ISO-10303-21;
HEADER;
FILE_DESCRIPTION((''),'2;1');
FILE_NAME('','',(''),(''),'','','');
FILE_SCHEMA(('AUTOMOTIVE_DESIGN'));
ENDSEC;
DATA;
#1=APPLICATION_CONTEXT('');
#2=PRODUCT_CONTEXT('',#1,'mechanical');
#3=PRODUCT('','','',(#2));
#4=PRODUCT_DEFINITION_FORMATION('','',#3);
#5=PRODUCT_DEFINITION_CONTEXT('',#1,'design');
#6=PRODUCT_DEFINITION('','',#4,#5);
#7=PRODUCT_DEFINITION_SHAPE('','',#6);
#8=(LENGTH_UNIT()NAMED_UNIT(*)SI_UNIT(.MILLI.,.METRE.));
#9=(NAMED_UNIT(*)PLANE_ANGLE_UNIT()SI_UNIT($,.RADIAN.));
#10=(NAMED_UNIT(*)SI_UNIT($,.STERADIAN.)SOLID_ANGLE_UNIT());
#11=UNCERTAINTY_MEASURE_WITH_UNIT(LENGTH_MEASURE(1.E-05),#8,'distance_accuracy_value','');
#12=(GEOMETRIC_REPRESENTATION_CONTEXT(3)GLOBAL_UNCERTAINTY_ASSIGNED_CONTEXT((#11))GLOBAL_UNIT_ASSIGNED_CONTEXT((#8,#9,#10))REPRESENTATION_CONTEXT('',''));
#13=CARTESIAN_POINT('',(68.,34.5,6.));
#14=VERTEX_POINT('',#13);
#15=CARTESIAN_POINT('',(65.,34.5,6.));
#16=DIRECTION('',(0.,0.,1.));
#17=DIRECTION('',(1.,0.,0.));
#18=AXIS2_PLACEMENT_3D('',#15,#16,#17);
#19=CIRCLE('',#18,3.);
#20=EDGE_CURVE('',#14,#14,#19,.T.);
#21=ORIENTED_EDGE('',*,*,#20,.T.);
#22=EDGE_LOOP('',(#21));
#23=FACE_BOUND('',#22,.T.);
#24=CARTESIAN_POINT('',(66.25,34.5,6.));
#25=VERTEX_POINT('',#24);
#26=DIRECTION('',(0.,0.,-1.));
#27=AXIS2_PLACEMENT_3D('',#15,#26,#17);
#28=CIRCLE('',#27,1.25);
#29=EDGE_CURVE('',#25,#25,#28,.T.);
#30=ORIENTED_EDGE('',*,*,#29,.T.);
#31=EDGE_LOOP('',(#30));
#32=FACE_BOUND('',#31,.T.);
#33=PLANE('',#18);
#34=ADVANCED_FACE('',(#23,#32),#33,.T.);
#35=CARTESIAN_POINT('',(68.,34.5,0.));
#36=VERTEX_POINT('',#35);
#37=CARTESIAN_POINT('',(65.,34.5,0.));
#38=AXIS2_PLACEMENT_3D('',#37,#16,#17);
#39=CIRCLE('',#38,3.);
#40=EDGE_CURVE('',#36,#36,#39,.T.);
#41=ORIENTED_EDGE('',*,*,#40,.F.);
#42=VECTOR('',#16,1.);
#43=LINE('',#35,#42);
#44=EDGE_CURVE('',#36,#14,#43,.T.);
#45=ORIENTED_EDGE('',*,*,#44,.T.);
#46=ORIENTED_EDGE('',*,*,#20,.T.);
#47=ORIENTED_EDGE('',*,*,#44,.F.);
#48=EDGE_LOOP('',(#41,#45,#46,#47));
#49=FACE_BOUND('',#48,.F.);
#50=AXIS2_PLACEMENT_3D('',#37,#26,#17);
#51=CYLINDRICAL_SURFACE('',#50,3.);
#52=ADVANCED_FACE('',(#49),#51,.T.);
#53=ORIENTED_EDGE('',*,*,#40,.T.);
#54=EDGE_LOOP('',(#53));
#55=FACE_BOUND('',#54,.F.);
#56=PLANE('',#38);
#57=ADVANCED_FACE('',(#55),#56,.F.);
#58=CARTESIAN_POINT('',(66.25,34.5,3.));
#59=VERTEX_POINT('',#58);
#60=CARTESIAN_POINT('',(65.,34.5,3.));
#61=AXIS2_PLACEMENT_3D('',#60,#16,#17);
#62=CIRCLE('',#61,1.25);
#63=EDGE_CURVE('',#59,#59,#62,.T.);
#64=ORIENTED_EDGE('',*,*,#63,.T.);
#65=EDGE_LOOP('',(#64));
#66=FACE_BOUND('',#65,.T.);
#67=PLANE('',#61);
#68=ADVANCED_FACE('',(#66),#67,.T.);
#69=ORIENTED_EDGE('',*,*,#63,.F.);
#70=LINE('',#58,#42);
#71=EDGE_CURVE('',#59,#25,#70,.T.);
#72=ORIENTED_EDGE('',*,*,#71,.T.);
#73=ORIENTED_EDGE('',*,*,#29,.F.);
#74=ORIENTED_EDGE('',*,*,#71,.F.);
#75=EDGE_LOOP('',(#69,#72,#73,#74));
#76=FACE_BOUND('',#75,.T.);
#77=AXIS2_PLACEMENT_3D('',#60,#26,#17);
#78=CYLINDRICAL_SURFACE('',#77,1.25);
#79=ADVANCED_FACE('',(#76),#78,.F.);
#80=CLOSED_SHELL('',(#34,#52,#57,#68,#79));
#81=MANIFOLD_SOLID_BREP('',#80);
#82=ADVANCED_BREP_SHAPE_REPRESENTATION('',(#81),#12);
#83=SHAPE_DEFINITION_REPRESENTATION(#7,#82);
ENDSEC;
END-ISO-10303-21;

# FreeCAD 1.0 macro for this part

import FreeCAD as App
import Part
import Sketcher

V = App.Vector
Q = App.Units.Quantity

doc = App.newDocument("Part")
body = doc.addObject("PartDesign::Body", "Body")

# Sketch on XY plane
sketch1 = body.newObject("Sketcher::SketchObject", "Sketch")
sketch1.AttachmentSupport = (doc.getObject("XY_Plane"), [""])
sketch1.MapMode = "FlatFace"
sketch1.AttachmentOffset = App.Placement(V(0, 0, 3), App.Rotation())
sketch1.addGeometry(Part.Circle(V(55, 28, 0), V(0, 0, 1), 1.2), False)
sketch1.addConstraint([
    Sketcher.Constraint("Diameter", 0, Q("2.5 mm")),
    Sketcher.Constraint("DistanceX", -1, 1, 0, 3, Q("55 mm")),
    Sketcher.Constraint("DistanceY", -1, 1, 0, 3, Q("28 mm")),
])
pad1 = body.newObject("PartDesign::Pad", "Pad")
pad1.Profile = sketch1
pad1.Length = 5
body2 = doc.addObject("PartDesign::Body", "Body001")

# Sketch on XY plane
sketch2 = body2.newObject("Sketcher::SketchObject", "Sketch001")
sketch2.AttachmentSupport = (doc.getObject("XY_Plane001"), [""])
sketch2.MapMode = "FlatFace"
sketch2.addGeometry(Part.Circle(V(55, 28, 0), V(0, 0, 1), 3), False)
sketch2.addConstraint([
    Sketcher.Constraint("Diameter", 0, Q("6 mm")),
    Sketcher.Constraint("DistanceX", -1, 1, 0, 3, Q("55 mm")),
    Sketcher.Constraint("DistanceY", -1, 1, 0, 3, Q("28 mm")),
])
pad2 = body2.newObject("PartDesign::Pad", "Pad001")
pad2.Profile = sketch2
pad2.Length = 6
doc.recompute()

boolean = body2.newObject("PartDesign::Boolean", "Boolean")
boolean.Type = "Cut"
boolean.addObjects([body])
body3 = doc.addObject("PartDesign::Body", "Body002")
doc.recompute()

body2.Placement = App.Placement(V(10, 6.5, 0), App.Rotation(V(0, 0, 1), 0))
boolean2 = body3.newObject("PartDesign::Boolean", "Boolean001")
boolean2.Type = "Fuse"
boolean2.addObjects([body2])

doc.recompute()
